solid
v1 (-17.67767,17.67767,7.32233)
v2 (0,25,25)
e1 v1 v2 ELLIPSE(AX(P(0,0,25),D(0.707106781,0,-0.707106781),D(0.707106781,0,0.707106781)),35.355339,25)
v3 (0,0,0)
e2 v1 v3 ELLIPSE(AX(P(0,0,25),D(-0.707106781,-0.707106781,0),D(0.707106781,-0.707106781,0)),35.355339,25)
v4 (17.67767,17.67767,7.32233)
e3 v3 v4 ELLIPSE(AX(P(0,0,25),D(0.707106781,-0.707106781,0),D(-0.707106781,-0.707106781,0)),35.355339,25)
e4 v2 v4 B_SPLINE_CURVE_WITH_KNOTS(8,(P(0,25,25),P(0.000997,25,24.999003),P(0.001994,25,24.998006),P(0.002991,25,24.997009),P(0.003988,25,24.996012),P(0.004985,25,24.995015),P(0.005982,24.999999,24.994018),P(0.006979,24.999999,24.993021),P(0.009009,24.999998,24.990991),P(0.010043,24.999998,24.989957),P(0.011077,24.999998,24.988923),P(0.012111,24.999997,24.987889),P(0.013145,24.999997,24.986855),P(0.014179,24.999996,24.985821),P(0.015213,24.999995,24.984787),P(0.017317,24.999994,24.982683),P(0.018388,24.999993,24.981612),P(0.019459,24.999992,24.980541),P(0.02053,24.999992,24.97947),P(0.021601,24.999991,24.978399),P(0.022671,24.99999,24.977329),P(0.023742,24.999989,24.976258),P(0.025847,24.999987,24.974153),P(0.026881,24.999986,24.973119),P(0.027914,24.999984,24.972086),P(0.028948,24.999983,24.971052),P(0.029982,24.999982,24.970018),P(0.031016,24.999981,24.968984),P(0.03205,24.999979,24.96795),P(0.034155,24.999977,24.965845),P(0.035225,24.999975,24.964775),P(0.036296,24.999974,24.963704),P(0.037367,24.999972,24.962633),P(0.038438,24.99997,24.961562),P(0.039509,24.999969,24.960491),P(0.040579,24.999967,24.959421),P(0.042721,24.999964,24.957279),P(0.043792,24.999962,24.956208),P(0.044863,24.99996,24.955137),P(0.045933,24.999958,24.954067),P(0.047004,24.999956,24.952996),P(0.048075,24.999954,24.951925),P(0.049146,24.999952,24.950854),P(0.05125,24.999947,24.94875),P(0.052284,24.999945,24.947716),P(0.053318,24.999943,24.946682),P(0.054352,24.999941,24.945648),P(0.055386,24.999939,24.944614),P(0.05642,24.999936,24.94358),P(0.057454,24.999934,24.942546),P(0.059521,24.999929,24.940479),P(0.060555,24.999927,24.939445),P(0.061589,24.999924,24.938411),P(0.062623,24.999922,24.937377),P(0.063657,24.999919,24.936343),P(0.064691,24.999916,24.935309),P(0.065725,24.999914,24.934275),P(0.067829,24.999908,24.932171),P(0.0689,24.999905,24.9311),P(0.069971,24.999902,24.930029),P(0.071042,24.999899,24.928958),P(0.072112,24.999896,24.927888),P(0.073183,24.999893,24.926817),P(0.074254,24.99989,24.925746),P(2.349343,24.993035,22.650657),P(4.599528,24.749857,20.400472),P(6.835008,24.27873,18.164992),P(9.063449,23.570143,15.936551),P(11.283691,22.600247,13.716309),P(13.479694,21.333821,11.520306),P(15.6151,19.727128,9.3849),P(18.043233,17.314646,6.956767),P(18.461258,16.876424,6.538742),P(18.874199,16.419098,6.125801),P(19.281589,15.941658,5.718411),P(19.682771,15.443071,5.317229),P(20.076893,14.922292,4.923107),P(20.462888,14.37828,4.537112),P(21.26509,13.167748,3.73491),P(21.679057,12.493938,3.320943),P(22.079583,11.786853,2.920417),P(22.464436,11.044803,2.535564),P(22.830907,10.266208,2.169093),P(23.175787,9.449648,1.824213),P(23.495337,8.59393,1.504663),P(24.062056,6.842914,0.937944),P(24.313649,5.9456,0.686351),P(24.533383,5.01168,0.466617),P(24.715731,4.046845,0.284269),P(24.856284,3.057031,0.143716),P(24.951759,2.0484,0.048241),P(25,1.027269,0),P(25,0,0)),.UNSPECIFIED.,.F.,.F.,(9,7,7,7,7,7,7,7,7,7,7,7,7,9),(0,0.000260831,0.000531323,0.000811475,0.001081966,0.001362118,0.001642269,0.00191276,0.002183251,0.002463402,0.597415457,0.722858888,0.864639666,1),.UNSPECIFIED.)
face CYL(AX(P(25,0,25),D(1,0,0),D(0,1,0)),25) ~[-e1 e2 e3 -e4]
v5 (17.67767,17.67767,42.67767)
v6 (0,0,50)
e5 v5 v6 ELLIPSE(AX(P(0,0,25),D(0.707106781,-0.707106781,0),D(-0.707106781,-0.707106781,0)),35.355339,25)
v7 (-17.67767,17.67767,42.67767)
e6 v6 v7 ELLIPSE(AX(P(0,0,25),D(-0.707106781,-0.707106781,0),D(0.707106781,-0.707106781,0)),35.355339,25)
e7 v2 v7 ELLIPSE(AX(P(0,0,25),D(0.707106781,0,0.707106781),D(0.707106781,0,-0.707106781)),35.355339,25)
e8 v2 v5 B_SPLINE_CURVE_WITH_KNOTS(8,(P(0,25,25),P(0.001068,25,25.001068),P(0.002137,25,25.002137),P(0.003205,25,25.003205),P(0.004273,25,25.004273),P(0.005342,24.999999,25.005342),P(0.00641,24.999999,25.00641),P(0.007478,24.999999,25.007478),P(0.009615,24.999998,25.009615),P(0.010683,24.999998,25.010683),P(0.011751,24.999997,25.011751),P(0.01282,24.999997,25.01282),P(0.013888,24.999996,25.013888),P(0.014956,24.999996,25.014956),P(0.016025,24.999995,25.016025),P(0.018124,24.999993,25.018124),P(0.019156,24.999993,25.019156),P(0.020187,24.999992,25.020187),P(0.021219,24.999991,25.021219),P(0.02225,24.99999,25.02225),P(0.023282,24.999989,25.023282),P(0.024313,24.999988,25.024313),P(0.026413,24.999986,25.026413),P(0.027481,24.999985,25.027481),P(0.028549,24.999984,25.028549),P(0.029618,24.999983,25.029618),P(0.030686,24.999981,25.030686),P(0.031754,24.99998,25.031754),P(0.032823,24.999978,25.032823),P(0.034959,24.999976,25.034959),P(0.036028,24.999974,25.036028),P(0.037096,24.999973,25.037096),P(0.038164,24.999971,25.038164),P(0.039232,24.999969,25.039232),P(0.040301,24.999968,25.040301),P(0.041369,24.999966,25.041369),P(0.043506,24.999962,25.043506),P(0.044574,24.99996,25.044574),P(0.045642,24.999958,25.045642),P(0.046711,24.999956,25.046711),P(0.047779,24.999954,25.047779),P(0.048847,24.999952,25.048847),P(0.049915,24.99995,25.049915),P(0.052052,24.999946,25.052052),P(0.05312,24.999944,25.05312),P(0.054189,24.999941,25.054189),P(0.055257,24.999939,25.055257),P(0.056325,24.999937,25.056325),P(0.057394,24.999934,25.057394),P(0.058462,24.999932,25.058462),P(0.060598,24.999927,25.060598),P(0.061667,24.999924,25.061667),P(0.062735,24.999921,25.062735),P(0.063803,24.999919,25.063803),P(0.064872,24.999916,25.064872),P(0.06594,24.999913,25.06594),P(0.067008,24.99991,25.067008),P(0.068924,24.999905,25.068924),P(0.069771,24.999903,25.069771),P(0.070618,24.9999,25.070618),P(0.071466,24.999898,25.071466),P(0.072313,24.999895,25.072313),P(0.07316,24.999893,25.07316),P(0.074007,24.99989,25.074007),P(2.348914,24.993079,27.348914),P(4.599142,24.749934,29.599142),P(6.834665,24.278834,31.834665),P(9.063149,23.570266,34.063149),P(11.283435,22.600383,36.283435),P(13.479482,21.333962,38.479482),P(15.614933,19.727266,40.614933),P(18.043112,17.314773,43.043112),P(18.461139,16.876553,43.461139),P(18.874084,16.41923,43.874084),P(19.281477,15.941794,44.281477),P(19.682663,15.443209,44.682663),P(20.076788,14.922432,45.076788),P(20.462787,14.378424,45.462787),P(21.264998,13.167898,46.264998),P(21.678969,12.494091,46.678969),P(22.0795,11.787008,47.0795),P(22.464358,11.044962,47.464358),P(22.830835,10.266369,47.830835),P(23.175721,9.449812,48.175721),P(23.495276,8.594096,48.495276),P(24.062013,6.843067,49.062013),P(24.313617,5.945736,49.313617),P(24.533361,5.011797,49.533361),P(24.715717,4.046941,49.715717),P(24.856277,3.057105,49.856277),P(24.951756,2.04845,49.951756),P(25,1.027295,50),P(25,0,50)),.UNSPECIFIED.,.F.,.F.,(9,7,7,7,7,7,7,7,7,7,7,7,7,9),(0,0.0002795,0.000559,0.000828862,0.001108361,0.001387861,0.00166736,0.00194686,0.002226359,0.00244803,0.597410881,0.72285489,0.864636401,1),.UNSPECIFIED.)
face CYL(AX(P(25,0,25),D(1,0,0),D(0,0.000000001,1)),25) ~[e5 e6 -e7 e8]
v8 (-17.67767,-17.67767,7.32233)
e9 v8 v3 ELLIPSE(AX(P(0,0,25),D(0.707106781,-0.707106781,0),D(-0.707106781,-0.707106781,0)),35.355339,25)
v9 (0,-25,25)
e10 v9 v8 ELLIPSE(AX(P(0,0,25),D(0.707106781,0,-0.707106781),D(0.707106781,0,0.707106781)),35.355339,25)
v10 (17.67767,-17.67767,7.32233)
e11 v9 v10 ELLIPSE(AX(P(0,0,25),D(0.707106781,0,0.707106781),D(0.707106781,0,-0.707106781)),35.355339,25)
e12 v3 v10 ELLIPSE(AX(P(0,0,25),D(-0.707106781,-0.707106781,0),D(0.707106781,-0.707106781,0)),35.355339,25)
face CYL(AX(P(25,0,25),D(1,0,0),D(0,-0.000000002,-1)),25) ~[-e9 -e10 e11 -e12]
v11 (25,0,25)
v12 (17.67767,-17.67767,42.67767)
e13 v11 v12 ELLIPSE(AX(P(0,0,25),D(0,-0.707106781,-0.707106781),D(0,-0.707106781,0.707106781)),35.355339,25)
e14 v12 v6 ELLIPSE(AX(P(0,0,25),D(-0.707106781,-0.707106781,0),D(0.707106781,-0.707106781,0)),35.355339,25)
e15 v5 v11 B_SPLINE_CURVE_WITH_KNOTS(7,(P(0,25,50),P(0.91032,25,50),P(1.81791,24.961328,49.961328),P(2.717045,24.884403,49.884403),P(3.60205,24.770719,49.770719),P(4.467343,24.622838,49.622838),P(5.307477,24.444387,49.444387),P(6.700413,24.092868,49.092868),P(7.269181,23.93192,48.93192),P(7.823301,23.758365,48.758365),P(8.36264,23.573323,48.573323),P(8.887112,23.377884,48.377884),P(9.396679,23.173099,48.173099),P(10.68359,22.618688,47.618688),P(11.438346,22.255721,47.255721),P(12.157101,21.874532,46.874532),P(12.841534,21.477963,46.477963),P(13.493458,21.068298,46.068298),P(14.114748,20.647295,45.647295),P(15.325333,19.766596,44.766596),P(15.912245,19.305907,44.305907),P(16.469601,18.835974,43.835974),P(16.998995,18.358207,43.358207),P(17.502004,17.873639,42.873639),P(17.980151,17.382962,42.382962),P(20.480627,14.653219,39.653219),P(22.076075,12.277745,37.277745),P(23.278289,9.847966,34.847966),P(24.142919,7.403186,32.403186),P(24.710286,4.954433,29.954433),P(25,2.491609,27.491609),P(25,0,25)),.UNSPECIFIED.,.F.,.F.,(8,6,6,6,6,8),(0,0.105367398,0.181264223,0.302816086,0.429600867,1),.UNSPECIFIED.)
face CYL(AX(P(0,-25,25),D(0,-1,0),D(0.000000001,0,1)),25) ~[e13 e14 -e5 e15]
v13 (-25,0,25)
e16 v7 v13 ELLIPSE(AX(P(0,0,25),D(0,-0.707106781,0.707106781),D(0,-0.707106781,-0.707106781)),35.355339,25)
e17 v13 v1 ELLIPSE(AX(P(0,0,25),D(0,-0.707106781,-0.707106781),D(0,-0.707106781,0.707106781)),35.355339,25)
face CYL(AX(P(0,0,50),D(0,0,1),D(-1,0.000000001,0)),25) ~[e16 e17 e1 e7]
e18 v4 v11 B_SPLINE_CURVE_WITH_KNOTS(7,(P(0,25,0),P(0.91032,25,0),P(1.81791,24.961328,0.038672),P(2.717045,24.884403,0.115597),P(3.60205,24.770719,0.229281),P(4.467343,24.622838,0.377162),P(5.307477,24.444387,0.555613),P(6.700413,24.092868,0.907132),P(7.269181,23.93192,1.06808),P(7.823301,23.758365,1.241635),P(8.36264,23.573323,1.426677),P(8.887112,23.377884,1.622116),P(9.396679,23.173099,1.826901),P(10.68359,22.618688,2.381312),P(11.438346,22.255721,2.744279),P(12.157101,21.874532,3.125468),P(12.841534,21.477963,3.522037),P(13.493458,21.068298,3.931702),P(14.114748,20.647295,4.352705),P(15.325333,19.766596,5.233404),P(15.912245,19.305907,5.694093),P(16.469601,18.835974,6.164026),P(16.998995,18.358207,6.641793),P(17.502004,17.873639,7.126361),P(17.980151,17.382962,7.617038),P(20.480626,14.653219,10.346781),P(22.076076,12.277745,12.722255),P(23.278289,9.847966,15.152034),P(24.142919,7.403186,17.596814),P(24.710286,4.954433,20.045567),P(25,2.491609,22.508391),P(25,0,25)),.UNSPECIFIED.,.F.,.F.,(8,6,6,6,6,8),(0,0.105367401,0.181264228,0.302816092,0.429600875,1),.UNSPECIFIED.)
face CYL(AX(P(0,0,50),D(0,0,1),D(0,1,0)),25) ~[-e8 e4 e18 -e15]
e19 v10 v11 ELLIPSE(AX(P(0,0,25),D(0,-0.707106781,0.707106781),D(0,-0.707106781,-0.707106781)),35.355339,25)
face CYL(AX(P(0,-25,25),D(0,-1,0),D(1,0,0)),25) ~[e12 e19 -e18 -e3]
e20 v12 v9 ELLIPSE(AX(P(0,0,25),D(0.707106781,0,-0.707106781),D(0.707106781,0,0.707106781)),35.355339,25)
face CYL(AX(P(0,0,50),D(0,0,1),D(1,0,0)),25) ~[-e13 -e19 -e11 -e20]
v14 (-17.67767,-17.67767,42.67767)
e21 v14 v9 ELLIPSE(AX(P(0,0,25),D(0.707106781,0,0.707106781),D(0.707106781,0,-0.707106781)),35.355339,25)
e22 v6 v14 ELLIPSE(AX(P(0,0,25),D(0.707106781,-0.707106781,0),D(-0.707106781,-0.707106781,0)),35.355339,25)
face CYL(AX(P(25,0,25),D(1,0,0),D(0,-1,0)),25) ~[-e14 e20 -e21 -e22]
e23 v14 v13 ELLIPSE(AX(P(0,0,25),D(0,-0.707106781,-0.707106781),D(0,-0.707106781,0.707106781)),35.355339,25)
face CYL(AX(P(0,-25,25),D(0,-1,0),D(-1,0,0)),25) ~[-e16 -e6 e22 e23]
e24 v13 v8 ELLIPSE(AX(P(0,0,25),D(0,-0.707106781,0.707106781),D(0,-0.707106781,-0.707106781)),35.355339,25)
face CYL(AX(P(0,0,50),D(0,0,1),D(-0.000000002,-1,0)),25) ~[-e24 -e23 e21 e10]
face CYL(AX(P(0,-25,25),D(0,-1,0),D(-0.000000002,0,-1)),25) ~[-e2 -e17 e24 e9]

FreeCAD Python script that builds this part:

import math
import FreeCAD as App
import Part
import Sketcher

V = App.Vector


def add_polygon(sketch, points):
    """Adds a closed chain of lines whose ends are joined by coincident constraints."""
    first, n = sketch.GeometryCount, len(points)
    for a, b in zip(points, points[1:] + points[:1]):
        sketch.addGeometry(Part.LineSegment(App.Vector(*a, 0), App.Vector(*b, 0)), False)
    for i in range(n):
        sketch.addConstraint(Sketcher.Constraint("Coincident", first + i, 2, first + (i + 1) % n, 1))

doc = App.newDocument("Part")
body = doc.addObject("PartDesign::Body", "Body")

# Sketch on XY plane
sketch1 = body.newObject("Sketcher::SketchObject", "Sketch")
sketch1.AttachmentSupport = (doc.getObject("XY_Plane"), [""])
sketch1.MapMode = "FlatFace"
add_polygon(sketch1, [(-25, 25), (-25, -25), (25, -25), (25, 25)])  # lines 0-3
sketch1.addConstraint([
    Sketcher.Constraint("Vertical", 0),
    Sketcher.Constraint("Horizontal", 1),
    Sketcher.Constraint("Vertical", 2),
    Sketcher.Constraint("Horizontal", 3),
    Sketcher.Constraint("Symmetric", 0, 2, 2, 2, -1, 1),
    Sketcher.Constraint("Equal", 3, 0),
    Sketcher.Constraint("DistanceX", 1, 1, 1, 2, 50.0),
])
pad1 = body.newObject("PartDesign::Pad", "Pad")
pad1.Profile = sketch1
pad1.Length = 50

# Sketch on XZ plane
sketch2 = body.newObject("Sketcher::SketchObject", "Sketch001")
sketch2.AttachmentSupport = (doc.getObject("XZ_Plane"), [""])
sketch2.MapMode = "FlatFace"
sketch2.AttachmentOffset = App.Placement(V(0, 0, 25), App.Rotation())
sketch2.addGeometry([
    Part.ArcOfCircle(Part.Circle(V(0, 25, 0), V(0, 0, 1), 25), math.radians(0), math.radians(90)),  # 0
    Part.LineSegment(V(25, 25, 0), V(25, 50, 0)),  # 1
    Part.LineSegment(V(25, 50, 0), V(0, 50, 0)),  # 2
    Part.LineSegment(V(25, 0, 0), V(25, 25, 0)),  # 3
    Part.ArcOfCircle(Part.Circle(V(0, 25, 0), V(0, 0, 1), 25), math.radians(-90), math.radians(0)),  # 4
    Part.LineSegment(V(0, 0, 0), V(25, 0, 0)),  # 5
    Part.LineSegment(V(-25, 0, 0), V(0, 0, 0)),  # 6
    Part.ArcOfCircle(Part.Circle(V(0, 25, 0), V(0, 0, 1), 25), math.radians(180), math.radians(270)),  # 7
    Part.LineSegment(V(-25, 25, 0), V(-25, 0, 0)),  # 8
    Part.ArcOfCircle(Part.Circle(V(0, 25, 0), V(0, 0, 1), 25), math.radians(90), math.radians(180)),  # 9
    Part.LineSegment(V(0, 50, 0), V(-25, 50, 0)),  # 10
    Part.LineSegment(V(-25, 50, 0), V(-25, 25, 0)),  # 11
], False)
sketch2.addConstraint([
    Sketcher.Constraint("Tangent", 0, 1, 1, 1),
    Sketcher.Constraint("Coincident", 1, 2, 2, 1),
    Sketcher.Constraint("Tangent", 2, 2, 0, 2),
    Sketcher.Constraint("Tangent", 3, 2, 4, 2),
    Sketcher.Constraint("Tangent", 4, 1, 5, 1),
    Sketcher.Constraint("Coincident", 5, 2, 3, 1),
    Sketcher.Constraint("Tangent", 6, 2, 7, 2),
    Sketcher.Constraint("Tangent", 7, 1, 8, 1),
    Sketcher.Constraint("Coincident", 8, 2, 6, 1),
    Sketcher.Constraint("Tangent", 9, 1, 10, 1),
    Sketcher.Constraint("Coincident", 10, 2, 11, 1),
    Sketcher.Constraint("Tangent", 11, 2, 9, 2),
    Sketcher.Constraint("Vertical", 1),
    Sketcher.Constraint("Horizontal", 2),
    Sketcher.Constraint("Vertical", 3),
    Sketcher.Constraint("Horizontal", 5),
    Sketcher.Constraint("Horizontal", 6),
    Sketcher.Constraint("Vertical", 8),
    Sketcher.Constraint("Horizontal", 10),
    Sketcher.Constraint("Vertical", 11),
    Sketcher.Constraint("Coincident", 4, 1, -1, 1),
    Sketcher.Constraint("Coincident", 6, 2, -1, 1),
    Sketcher.Constraint("Coincident", 4, 3, 0, 3),
    Sketcher.Constraint("Coincident", 9, 3, 0, 3),
    Sketcher.Constraint("Coincident", 11, 2, 7, 1),
    Sketcher.Constraint("Equal", 0, 4),
    Sketcher.Constraint("Radius", 0, 25.0),
])
pocket1 = body.newObject("PartDesign::Pocket", "Pocket")
pocket1.Profile = sketch2
pocket1.Length = 60

# Sketch on YZ plane
sketch3 = body.newObject("Sketcher::SketchObject", "Sketch002")
sketch3.AttachmentSupport = (doc.getObject("YZ_Plane"), [""])
sketch3.MapMode = "FlatFace"
sketch3.AttachmentOffset = App.Placement(V(0, 0, 25), App.Rotation())
sketch3.addGeometry([
    Part.ArcOfCircle(Part.Circle(V(0, 25, 0), V(0, 0, 1), 25), math.radians(90), math.radians(180)),  # 0
    Part.LineSegment(V(0, 50, 0), V(-25, 50, 0)),  # 1
    Part.LineSegment(V(-25, 50, 0), V(-25, 25, 0)),  # 2
    Part.ArcOfCircle(Part.Circle(V(0, 25, 0), V(0, 0, 1), 25), math.radians(0), math.radians(90)),  # 3
    Part.LineSegment(V(25, 25, 0), V(25, 50, 0)),  # 4
    Part.LineSegment(V(25, 50, 0), V(0, 50, 0)),  # 5
    Part.LineSegment(V(25, 0, 0), V(25, 25, 0)),  # 6
    Part.ArcOfCircle(Part.Circle(V(0, 25, 0), V(0, 0, 1), 25), math.radians(-90), math.radians(0)),  # 7
    Part.LineSegment(V(0, 0, 0), V(25, 0, 0)),  # 8
    Part.LineSegment(V(-25, 0, 0), V(0, 0, 0)),  # 9
    Part.ArcOfCircle(Part.Circle(V(0, 25, 0), V(0, 0, 1), 25), math.radians(180), math.radians(270)),  # 10
    Part.LineSegment(V(-25, 25, 0), V(-25, 0, 0)),  # 11
], False)
sketch3.addConstraint([
    Sketcher.Constraint("Tangent", 0, 1, 1, 1),
    Sketcher.Constraint("Coincident", 1, 2, 2, 1),
    Sketcher.Constraint("Tangent", 2, 2, 0, 2),
    Sketcher.Constraint("Tangent", 3, 1, 4, 1),
    Sketcher.Constraint("Coincident", 4, 2, 5, 1),
    Sketcher.Constraint("Tangent", 5, 2, 3, 2),
    Sketcher.Constraint("Tangent", 6, 2, 7, 2),
    Sketcher.Constraint("Tangent", 7, 1, 8, 1),
    Sketcher.Constraint("Coincident", 8, 2, 6, 1),
    Sketcher.Constraint("Tangent", 9, 2, 10, 2),
    Sketcher.Constraint("Tangent", 10, 1, 11, 1),
    Sketcher.Constraint("Coincident", 11, 2, 9, 1),
    Sketcher.Constraint("Horizontal", 1),
    Sketcher.Constraint("Vertical", 2),
    Sketcher.Constraint("Vertical", 4),
    Sketcher.Constraint("Horizontal", 5),
    Sketcher.Constraint("Vertical", 6),
    Sketcher.Constraint("Horizontal", 8),
    Sketcher.Constraint("Horizontal", 9),
    Sketcher.Constraint("Vertical", 11),
    Sketcher.Constraint("Coincident", 7, 1, -1, 1),
    Sketcher.Constraint("Coincident", 9, 2, -1, 1),
    Sketcher.Constraint("Coincident", 3, 3, 0, 3),
    Sketcher.Constraint("Coincident", 7, 3, 0, 3),
    Sketcher.Constraint("Coincident", 10, 1, 2, 2),
    Sketcher.Constraint("Equal", 0, 3),
    Sketcher.Constraint("Radius", 0, 25.0),
])
pocket2 = body.newObject("PartDesign::Pocket", "Pocket001")
pocket2.Profile = sketch3
pocket2.Length = 60

# Sketch on XY plane
sketch4 = body.newObject("Sketcher::SketchObject", "Sketch003")
sketch4.AttachmentSupport = (doc.getObject("XY_Plane"), [""])
sketch4.MapMode = "FlatFace"
sketch4.AttachmentOffset = App.Placement(V(0, 0, 50), App.Rotation())
sketch4.addGeometry([
    Part.LineSegment(V(25, -25, 0), V(25, 0, 0)),  # 0
    Part.ArcOfCircle(Part.Circle(V(0, 0, 0), V(0, 0, 1), 25), math.radians(-90), math.radians(0)),  # 1
    Part.LineSegment(V(0, -25, 0), V(25, -25, 0)),  # 2
    Part.LineSegment(V(-25, -25, 0), V(0, -25, 0)),  # 3
    Part.ArcOfCircle(Part.Circle(V(0, 0, 0), V(0, 0, 1), 25), math.radians(180), math.radians(270)),  # 4
    Part.LineSegment(V(-25, 0, 0), V(-25, -25, 0)),  # 5
    Part.ArcOfCircle(Part.Circle(V(0, 0, 0), V(0, 0, 1), 25), math.radians(90), math.radians(180)),  # 6
    Part.LineSegment(V(0, 25, 0), V(-25, 25, 0)),  # 7
    Part.LineSegment(V(-25, 25, 0), V(-25, 0, 0)),  # 8
    Part.ArcOfCircle(Part.Circle(V(0, 0, 0), V(0, 0, 1), 25), math.radians(0), math.radians(90)),  # 9
    Part.LineSegment(V(25, 0, 0), V(25, 25, 0)),  # 10
    Part.LineSegment(V(25, 25, 0), V(0, 25, 0)),  # 11
], False)
sketch4.addConstraint([
    Sketcher.Constraint("Tangent", 0, 2, 1, 2),
    Sketcher.Constraint("Tangent", 1, 1, 2, 1),
    Sketcher.Constraint("Coincident", 2, 2, 0, 1),
    Sketcher.Constraint("Tangent", 3, 2, 4, 2),
    Sketcher.Constraint("Tangent", 4, 1, 5, 1),
    Sketcher.Constraint("Coincident", 5, 2, 3, 1),
    Sketcher.Constraint("Tangent", 6, 1, 7, 1),
    Sketcher.Constraint("Coincident", 7, 2, 8, 1),
    Sketcher.Constraint("Tangent", 8, 2, 6, 2),
    Sketcher.Constraint("Tangent", 9, 1, 10, 1),
    Sketcher.Constraint("Coincident", 10, 2, 11, 1),
    Sketcher.Constraint("Tangent", 11, 2, 9, 2),
    Sketcher.Constraint("Vertical", 0),
    Sketcher.Constraint("Horizontal", 2),
    Sketcher.Constraint("Horizontal", 3),
    Sketcher.Constraint("Vertical", 5),
    Sketcher.Constraint("Horizontal", 7),
    Sketcher.Constraint("Vertical", 8),
    Sketcher.Constraint("Vertical", 10),
    Sketcher.Constraint("Horizontal", 11),
    Sketcher.Constraint("Coincident", 1, 3, -1, 1),
    Sketcher.Constraint("Coincident", 4, 3, -1, 1),
    Sketcher.Constraint("Coincident", 6, 3, -1, 1),
    Sketcher.Constraint("Coincident", 9, 3, -1, 1),
    Sketcher.Constraint("Equal", 1, 4),
    Sketcher.Constraint("Equal", 4, 6),
    Sketcher.Constraint("Equal", 6, 9),
    Sketcher.Constraint("Radius", 1, 25.0),
])
pocket3 = body.newObject("PartDesign::Pocket", "Pocket002")
pocket3.Profile = sketch4
pocket3.Length = 60

doc.recompute()
